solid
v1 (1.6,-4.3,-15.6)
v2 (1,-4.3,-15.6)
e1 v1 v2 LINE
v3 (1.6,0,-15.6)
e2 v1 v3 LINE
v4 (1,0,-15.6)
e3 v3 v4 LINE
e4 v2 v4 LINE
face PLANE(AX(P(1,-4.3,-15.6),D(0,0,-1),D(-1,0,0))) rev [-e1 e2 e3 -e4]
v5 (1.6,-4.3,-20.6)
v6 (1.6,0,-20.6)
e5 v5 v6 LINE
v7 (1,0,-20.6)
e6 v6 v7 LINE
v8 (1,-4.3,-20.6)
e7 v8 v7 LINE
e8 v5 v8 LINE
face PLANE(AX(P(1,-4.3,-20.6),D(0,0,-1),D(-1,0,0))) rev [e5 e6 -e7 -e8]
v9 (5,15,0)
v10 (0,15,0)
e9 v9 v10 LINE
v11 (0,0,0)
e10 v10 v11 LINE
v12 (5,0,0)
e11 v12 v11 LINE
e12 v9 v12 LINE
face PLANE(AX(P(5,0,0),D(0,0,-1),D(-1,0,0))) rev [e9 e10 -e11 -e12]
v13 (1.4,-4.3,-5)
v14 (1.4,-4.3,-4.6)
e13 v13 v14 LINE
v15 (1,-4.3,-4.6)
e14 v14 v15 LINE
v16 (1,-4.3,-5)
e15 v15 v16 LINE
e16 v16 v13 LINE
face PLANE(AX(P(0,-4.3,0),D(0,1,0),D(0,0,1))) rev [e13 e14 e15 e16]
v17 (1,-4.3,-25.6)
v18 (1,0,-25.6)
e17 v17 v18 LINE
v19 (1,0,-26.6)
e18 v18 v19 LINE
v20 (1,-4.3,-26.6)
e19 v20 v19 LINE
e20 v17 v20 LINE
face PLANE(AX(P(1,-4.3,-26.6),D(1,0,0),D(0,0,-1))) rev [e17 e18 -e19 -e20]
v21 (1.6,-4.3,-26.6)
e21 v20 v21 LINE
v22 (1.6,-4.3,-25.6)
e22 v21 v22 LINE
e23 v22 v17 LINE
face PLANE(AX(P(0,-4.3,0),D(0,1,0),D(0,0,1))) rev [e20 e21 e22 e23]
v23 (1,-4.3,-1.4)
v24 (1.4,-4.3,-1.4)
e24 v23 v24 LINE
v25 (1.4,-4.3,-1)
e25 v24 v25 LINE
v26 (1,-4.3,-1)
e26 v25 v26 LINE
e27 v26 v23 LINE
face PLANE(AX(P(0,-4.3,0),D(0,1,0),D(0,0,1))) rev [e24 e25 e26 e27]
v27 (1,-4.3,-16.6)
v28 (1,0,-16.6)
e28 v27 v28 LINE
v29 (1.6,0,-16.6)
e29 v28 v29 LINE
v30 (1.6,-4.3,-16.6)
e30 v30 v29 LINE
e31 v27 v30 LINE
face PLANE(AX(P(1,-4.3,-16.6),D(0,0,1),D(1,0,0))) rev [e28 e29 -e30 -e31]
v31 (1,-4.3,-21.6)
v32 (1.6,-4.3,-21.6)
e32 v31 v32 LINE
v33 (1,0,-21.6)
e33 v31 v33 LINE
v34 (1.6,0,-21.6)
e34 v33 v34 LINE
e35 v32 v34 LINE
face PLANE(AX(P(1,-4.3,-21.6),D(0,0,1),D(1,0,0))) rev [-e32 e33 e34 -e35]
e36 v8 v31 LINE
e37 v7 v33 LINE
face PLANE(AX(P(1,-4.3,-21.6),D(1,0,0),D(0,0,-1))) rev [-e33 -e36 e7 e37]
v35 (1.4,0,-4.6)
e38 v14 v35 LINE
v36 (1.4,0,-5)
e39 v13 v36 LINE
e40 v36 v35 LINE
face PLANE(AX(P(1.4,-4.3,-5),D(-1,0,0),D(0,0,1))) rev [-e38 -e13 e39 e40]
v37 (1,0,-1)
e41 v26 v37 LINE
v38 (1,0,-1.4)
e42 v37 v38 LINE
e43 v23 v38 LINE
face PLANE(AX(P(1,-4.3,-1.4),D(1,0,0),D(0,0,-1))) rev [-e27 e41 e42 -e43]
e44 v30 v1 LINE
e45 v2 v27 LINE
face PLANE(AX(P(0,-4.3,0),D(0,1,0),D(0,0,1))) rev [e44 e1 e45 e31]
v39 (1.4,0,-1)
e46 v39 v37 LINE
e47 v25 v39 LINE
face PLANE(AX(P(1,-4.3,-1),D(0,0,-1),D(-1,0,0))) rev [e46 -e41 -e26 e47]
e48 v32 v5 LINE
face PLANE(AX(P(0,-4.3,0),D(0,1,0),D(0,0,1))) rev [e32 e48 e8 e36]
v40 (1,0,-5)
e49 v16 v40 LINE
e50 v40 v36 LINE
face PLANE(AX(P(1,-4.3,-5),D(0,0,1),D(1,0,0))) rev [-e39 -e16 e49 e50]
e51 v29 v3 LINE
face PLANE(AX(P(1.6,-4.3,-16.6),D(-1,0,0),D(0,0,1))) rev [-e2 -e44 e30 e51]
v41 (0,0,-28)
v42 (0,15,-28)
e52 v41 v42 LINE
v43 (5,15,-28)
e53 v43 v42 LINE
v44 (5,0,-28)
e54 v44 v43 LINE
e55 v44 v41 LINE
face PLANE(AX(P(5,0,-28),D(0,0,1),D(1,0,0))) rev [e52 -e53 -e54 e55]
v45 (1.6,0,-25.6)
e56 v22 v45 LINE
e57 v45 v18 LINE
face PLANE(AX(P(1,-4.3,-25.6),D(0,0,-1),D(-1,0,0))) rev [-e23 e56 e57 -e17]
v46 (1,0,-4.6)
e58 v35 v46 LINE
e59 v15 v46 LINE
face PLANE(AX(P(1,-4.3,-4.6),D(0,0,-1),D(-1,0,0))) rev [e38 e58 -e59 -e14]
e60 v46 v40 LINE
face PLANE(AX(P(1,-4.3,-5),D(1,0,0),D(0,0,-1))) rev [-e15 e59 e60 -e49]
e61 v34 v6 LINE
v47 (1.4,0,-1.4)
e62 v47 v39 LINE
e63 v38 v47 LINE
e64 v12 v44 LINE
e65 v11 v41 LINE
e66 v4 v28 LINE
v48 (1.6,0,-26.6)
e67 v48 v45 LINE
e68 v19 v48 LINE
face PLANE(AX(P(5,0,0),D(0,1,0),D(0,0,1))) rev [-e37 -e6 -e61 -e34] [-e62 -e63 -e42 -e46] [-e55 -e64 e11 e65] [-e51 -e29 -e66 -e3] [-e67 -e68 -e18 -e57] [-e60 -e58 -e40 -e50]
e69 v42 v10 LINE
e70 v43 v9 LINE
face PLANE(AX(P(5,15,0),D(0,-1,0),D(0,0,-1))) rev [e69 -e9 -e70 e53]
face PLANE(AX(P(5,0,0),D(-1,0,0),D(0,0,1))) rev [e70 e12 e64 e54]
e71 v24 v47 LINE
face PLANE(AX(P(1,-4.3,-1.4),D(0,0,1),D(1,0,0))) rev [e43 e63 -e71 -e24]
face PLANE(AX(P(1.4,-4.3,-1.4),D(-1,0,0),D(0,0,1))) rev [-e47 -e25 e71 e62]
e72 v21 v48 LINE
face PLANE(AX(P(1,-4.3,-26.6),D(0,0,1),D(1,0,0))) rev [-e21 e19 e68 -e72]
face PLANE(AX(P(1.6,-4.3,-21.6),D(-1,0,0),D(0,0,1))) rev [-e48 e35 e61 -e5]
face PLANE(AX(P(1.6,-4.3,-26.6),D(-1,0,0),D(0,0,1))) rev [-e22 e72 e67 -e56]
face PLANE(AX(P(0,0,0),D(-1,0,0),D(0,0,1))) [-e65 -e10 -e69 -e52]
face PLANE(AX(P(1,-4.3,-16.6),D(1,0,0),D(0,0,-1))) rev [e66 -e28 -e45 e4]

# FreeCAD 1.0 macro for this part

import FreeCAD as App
import Part
import Sketcher

V = App.Vector
Q = App.Units.Quantity


def add_polygon(sketch, points):
    """Adds a closed chain of lines whose ends are joined by coincident constraints."""
    first, n = sketch.GeometryCount, len(points)
    for a, b in zip(points, points[1:] + points[:1]):
        sketch.addGeometry(Part.LineSegment(App.Vector(*a, 0), App.Vector(*b, 0)), False)
    for i in range(n):
        sketch.addConstraint(Sketcher.Constraint("Coincident", first + i, 2, first + (i + 1) % n, 1))

doc = App.newDocument("Part")
body = doc.addObject("PartDesign::Body", "Body")

# Sketch on YZ plane
sketch1 = body.newObject("Sketcher::SketchObject", "Sketch")
sketch1.AttachmentSupport = (doc.getObject("YZ_Plane"), [""])
sketch1.MapMode = "FlatFace"
add_polygon(sketch1, [(15, 0), (0, 0), (0, -28), (15, -28)])  # lines 0-3
sketch1.addConstraint([
    Sketcher.Constraint("Horizontal", 0),
    Sketcher.Constraint("Vertical", 1),
    Sketcher.Constraint("Horizontal", 2),
    Sketcher.Constraint("Vertical", 3),
    Sketcher.Constraint("Coincident", 0, 2, -1, 1),
    Sketcher.Constraint("DistanceX", 0, 2, 0, 1, Q("15 mm")),
    Sketcher.Constraint("DistanceY", 1, 2, 1, 1, Q("28 mm")),
])
pad1 = body.newObject("PartDesign::Pad", "Pad")
pad1.Profile = sketch1
pad1.Length = 5

# Sketch on XZ plane
sketch2 = body.newObject("Sketcher::SketchObject", "Sketch001")
sketch2.AttachmentSupport = (doc.getObject("XZ_Plane"), [""])
sketch2.MapMode = "FlatFace"
add_polygon(sketch2, [(1, -1), (1, -1.4), (1.4, -1.4), (1.4, -1)])  # lines 0-3
add_polygon(sketch2, [(1, -4.6), (1, -5), (1.4, -5), (1.4, -4.6)])  # lines 4-7
add_polygon(sketch2, [(1, -25.6), (1, -26.6), (1.6, -26.6), (1.6, -25.6)])  # lines 8-11
add_polygon(sketch2, [(1, -20.6), (1, -21.6), (1.6, -21.6), (1.6, -20.6)])  # lines 12-15
add_polygon(sketch2, [(1, -15.6), (1, -16.6), (1.6, -16.6), (1.6, -15.6)])  # lines 16-19
sketch2.addConstraint([
    Sketcher.Constraint("Vertical", 0),
    Sketcher.Constraint("Horizontal", 1),
    Sketcher.Constraint("Vertical", 2),
    Sketcher.Constraint("Horizontal", 3),
    Sketcher.Constraint("Vertical", 4),
    Sketcher.Constraint("Horizontal", 5),
    Sketcher.Constraint("Vertical", 6),
    Sketcher.Constraint("Horizontal", 7),
    Sketcher.Constraint("Vertical", 8),
    Sketcher.Constraint("Horizontal", 9),
    Sketcher.Constraint("Vertical", 10),
    Sketcher.Constraint("Horizontal", 11),
    Sketcher.Constraint("Vertical", 12),
    Sketcher.Constraint("Horizontal", 13),
    Sketcher.Constraint("Vertical", 14),
    Sketcher.Constraint("Horizontal", 15),
    Sketcher.Constraint("Vertical", 16),
    Sketcher.Constraint("Horizontal", 17),
    Sketcher.Constraint("Vertical", 18),
    Sketcher.Constraint("Horizontal", 19),
    Sketcher.Constraint("Vertical", 3, 2, 4, 2),
    Sketcher.Constraint("Vertical", 2, 2, 5, 2),
    Sketcher.Constraint("Vertical", 7, 2, 8, 2),
    Sketcher.Constraint("Vertical", 11, 2, 12, 2),
    Sketcher.Constraint("Vertical", 10, 2, 13, 2),
    Sketcher.Constraint("Vertical", 15, 2, 16, 2),
    Sketcher.Constraint("Vertical", 14, 2, 17, 2),
    Sketcher.Constraint("Equal", 7, 0),
    Sketcher.Constraint("Equal", 2, 4),
    Sketcher.Constraint("Equal", 10, 12),
    Sketcher.Constraint("Equal", 14, 16),
    Sketcher.Constraint("DistanceY", 8, 2, 8, 1, Q("1 mm")),
    Sketcher.Constraint("DistanceX", 1, 1, 1, 2, Q("0.4 mm")),
    Sketcher.Constraint("DistanceX", 9, 1, 9, 2, Q("0.6 mm")),
    Sketcher.Constraint("DistanceX", -1, 1, 0, 2, Q("1 mm")),
    Sketcher.Constraint("DistanceY", 2, 2, -1, 1, Q("1 mm")),
    Sketcher.Constraint("DistanceY", 4, 2, -1, 1, Q("5 mm")),
    Sketcher.Constraint("DistanceY", 8, 2, 7, 2, Q("22 mm")),
    Sketcher.Constraint("DistanceY", 11, 2, 12, 2, Q("4 mm")),
    Sketcher.Constraint("DistanceY", 15, 2, 16, 2, Q("4 mm")),
])
pad2 = body.newObject("PartDesign::Pad", "Pad001")
pad2.Profile = sketch2
pad2.Length = 4.3

doc.recompute()
